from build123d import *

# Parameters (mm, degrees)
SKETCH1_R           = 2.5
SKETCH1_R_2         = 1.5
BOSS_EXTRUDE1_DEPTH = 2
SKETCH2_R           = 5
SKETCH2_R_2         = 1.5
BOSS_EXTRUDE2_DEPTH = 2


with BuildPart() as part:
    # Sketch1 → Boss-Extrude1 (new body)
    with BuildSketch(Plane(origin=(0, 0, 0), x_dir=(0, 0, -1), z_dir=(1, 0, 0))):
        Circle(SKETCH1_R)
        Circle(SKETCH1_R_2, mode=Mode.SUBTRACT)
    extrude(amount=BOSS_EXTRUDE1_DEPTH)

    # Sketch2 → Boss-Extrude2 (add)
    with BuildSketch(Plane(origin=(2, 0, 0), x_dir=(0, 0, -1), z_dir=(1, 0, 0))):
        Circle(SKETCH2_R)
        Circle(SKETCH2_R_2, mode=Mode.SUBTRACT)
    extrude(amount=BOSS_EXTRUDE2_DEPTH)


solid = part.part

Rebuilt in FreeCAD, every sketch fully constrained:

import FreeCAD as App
import Part
import Sketcher

doc = App.newDocument("Part")
body = doc.addObject("PartDesign::Body", "Body")

# Sketch on YZ plane
sketch1 = doc.addObject("Sketcher::SketchObject", "Sketch")
body.addObject(sketch1)
sketch1.AttachmentSupport = (doc.YZ_Plane, [""])
sketch1.MapMode = "FlatFace"
sketch1.addGeometry([
    Part.Circle(App.Vector(0, 0, 0), App.Vector(0, 0, 1), 2.5),
    Part.Circle(App.Vector(0, 0, 0), App.Vector(0, 0, 1), 1.5),
], False)
sketch1.addConstraint([
    Sketcher.Constraint("Coincident", 0, 3, -1, 1),
    Sketcher.Constraint("Coincident", 1, 3, -1, 1),
    Sketcher.Constraint("Diameter", 0, 5.0),
    Sketcher.Constraint("Diameter", 1, 3.0),
])
pad1 = doc.addObject("PartDesign::Pad", "Pad")
body.addObject(pad1)
pad1.Profile = sketch1
pad1.Length = 2

# Sketch on YZ plane
sketch2 = doc.addObject("Sketcher::SketchObject", "Sketch001")
body.addObject(sketch2)
sketch2.AttachmentSupport = (doc.YZ_Plane, [""])
sketch2.MapMode = "FlatFace"
sketch2.AttachmentOffset = App.Placement(App.Vector(0, 0, 2), App.Rotation())
sketch2.addGeometry([
    Part.Circle(App.Vector(0, 0, 0), App.Vector(0, 0, 1), 5),
    Part.Circle(App.Vector(0, 0, 0), App.Vector(0, 0, 1), 1.5),
], False)
sketch2.addConstraint([
    Sketcher.Constraint("Coincident", 0, 3, -1, 1),
    Sketcher.Constraint("Coincident", 1, 3, -1, 1),
    Sketcher.Constraint("Diameter", 0, 10.0),
    Sketcher.Constraint("Diameter", 1, 3.0),
])
pad2 = doc.addObject("PartDesign::Pad", "Pad001")
body.addObject(pad2)
pad2.Profile = sketch2
pad2.Length = 2

doc.recompute()
